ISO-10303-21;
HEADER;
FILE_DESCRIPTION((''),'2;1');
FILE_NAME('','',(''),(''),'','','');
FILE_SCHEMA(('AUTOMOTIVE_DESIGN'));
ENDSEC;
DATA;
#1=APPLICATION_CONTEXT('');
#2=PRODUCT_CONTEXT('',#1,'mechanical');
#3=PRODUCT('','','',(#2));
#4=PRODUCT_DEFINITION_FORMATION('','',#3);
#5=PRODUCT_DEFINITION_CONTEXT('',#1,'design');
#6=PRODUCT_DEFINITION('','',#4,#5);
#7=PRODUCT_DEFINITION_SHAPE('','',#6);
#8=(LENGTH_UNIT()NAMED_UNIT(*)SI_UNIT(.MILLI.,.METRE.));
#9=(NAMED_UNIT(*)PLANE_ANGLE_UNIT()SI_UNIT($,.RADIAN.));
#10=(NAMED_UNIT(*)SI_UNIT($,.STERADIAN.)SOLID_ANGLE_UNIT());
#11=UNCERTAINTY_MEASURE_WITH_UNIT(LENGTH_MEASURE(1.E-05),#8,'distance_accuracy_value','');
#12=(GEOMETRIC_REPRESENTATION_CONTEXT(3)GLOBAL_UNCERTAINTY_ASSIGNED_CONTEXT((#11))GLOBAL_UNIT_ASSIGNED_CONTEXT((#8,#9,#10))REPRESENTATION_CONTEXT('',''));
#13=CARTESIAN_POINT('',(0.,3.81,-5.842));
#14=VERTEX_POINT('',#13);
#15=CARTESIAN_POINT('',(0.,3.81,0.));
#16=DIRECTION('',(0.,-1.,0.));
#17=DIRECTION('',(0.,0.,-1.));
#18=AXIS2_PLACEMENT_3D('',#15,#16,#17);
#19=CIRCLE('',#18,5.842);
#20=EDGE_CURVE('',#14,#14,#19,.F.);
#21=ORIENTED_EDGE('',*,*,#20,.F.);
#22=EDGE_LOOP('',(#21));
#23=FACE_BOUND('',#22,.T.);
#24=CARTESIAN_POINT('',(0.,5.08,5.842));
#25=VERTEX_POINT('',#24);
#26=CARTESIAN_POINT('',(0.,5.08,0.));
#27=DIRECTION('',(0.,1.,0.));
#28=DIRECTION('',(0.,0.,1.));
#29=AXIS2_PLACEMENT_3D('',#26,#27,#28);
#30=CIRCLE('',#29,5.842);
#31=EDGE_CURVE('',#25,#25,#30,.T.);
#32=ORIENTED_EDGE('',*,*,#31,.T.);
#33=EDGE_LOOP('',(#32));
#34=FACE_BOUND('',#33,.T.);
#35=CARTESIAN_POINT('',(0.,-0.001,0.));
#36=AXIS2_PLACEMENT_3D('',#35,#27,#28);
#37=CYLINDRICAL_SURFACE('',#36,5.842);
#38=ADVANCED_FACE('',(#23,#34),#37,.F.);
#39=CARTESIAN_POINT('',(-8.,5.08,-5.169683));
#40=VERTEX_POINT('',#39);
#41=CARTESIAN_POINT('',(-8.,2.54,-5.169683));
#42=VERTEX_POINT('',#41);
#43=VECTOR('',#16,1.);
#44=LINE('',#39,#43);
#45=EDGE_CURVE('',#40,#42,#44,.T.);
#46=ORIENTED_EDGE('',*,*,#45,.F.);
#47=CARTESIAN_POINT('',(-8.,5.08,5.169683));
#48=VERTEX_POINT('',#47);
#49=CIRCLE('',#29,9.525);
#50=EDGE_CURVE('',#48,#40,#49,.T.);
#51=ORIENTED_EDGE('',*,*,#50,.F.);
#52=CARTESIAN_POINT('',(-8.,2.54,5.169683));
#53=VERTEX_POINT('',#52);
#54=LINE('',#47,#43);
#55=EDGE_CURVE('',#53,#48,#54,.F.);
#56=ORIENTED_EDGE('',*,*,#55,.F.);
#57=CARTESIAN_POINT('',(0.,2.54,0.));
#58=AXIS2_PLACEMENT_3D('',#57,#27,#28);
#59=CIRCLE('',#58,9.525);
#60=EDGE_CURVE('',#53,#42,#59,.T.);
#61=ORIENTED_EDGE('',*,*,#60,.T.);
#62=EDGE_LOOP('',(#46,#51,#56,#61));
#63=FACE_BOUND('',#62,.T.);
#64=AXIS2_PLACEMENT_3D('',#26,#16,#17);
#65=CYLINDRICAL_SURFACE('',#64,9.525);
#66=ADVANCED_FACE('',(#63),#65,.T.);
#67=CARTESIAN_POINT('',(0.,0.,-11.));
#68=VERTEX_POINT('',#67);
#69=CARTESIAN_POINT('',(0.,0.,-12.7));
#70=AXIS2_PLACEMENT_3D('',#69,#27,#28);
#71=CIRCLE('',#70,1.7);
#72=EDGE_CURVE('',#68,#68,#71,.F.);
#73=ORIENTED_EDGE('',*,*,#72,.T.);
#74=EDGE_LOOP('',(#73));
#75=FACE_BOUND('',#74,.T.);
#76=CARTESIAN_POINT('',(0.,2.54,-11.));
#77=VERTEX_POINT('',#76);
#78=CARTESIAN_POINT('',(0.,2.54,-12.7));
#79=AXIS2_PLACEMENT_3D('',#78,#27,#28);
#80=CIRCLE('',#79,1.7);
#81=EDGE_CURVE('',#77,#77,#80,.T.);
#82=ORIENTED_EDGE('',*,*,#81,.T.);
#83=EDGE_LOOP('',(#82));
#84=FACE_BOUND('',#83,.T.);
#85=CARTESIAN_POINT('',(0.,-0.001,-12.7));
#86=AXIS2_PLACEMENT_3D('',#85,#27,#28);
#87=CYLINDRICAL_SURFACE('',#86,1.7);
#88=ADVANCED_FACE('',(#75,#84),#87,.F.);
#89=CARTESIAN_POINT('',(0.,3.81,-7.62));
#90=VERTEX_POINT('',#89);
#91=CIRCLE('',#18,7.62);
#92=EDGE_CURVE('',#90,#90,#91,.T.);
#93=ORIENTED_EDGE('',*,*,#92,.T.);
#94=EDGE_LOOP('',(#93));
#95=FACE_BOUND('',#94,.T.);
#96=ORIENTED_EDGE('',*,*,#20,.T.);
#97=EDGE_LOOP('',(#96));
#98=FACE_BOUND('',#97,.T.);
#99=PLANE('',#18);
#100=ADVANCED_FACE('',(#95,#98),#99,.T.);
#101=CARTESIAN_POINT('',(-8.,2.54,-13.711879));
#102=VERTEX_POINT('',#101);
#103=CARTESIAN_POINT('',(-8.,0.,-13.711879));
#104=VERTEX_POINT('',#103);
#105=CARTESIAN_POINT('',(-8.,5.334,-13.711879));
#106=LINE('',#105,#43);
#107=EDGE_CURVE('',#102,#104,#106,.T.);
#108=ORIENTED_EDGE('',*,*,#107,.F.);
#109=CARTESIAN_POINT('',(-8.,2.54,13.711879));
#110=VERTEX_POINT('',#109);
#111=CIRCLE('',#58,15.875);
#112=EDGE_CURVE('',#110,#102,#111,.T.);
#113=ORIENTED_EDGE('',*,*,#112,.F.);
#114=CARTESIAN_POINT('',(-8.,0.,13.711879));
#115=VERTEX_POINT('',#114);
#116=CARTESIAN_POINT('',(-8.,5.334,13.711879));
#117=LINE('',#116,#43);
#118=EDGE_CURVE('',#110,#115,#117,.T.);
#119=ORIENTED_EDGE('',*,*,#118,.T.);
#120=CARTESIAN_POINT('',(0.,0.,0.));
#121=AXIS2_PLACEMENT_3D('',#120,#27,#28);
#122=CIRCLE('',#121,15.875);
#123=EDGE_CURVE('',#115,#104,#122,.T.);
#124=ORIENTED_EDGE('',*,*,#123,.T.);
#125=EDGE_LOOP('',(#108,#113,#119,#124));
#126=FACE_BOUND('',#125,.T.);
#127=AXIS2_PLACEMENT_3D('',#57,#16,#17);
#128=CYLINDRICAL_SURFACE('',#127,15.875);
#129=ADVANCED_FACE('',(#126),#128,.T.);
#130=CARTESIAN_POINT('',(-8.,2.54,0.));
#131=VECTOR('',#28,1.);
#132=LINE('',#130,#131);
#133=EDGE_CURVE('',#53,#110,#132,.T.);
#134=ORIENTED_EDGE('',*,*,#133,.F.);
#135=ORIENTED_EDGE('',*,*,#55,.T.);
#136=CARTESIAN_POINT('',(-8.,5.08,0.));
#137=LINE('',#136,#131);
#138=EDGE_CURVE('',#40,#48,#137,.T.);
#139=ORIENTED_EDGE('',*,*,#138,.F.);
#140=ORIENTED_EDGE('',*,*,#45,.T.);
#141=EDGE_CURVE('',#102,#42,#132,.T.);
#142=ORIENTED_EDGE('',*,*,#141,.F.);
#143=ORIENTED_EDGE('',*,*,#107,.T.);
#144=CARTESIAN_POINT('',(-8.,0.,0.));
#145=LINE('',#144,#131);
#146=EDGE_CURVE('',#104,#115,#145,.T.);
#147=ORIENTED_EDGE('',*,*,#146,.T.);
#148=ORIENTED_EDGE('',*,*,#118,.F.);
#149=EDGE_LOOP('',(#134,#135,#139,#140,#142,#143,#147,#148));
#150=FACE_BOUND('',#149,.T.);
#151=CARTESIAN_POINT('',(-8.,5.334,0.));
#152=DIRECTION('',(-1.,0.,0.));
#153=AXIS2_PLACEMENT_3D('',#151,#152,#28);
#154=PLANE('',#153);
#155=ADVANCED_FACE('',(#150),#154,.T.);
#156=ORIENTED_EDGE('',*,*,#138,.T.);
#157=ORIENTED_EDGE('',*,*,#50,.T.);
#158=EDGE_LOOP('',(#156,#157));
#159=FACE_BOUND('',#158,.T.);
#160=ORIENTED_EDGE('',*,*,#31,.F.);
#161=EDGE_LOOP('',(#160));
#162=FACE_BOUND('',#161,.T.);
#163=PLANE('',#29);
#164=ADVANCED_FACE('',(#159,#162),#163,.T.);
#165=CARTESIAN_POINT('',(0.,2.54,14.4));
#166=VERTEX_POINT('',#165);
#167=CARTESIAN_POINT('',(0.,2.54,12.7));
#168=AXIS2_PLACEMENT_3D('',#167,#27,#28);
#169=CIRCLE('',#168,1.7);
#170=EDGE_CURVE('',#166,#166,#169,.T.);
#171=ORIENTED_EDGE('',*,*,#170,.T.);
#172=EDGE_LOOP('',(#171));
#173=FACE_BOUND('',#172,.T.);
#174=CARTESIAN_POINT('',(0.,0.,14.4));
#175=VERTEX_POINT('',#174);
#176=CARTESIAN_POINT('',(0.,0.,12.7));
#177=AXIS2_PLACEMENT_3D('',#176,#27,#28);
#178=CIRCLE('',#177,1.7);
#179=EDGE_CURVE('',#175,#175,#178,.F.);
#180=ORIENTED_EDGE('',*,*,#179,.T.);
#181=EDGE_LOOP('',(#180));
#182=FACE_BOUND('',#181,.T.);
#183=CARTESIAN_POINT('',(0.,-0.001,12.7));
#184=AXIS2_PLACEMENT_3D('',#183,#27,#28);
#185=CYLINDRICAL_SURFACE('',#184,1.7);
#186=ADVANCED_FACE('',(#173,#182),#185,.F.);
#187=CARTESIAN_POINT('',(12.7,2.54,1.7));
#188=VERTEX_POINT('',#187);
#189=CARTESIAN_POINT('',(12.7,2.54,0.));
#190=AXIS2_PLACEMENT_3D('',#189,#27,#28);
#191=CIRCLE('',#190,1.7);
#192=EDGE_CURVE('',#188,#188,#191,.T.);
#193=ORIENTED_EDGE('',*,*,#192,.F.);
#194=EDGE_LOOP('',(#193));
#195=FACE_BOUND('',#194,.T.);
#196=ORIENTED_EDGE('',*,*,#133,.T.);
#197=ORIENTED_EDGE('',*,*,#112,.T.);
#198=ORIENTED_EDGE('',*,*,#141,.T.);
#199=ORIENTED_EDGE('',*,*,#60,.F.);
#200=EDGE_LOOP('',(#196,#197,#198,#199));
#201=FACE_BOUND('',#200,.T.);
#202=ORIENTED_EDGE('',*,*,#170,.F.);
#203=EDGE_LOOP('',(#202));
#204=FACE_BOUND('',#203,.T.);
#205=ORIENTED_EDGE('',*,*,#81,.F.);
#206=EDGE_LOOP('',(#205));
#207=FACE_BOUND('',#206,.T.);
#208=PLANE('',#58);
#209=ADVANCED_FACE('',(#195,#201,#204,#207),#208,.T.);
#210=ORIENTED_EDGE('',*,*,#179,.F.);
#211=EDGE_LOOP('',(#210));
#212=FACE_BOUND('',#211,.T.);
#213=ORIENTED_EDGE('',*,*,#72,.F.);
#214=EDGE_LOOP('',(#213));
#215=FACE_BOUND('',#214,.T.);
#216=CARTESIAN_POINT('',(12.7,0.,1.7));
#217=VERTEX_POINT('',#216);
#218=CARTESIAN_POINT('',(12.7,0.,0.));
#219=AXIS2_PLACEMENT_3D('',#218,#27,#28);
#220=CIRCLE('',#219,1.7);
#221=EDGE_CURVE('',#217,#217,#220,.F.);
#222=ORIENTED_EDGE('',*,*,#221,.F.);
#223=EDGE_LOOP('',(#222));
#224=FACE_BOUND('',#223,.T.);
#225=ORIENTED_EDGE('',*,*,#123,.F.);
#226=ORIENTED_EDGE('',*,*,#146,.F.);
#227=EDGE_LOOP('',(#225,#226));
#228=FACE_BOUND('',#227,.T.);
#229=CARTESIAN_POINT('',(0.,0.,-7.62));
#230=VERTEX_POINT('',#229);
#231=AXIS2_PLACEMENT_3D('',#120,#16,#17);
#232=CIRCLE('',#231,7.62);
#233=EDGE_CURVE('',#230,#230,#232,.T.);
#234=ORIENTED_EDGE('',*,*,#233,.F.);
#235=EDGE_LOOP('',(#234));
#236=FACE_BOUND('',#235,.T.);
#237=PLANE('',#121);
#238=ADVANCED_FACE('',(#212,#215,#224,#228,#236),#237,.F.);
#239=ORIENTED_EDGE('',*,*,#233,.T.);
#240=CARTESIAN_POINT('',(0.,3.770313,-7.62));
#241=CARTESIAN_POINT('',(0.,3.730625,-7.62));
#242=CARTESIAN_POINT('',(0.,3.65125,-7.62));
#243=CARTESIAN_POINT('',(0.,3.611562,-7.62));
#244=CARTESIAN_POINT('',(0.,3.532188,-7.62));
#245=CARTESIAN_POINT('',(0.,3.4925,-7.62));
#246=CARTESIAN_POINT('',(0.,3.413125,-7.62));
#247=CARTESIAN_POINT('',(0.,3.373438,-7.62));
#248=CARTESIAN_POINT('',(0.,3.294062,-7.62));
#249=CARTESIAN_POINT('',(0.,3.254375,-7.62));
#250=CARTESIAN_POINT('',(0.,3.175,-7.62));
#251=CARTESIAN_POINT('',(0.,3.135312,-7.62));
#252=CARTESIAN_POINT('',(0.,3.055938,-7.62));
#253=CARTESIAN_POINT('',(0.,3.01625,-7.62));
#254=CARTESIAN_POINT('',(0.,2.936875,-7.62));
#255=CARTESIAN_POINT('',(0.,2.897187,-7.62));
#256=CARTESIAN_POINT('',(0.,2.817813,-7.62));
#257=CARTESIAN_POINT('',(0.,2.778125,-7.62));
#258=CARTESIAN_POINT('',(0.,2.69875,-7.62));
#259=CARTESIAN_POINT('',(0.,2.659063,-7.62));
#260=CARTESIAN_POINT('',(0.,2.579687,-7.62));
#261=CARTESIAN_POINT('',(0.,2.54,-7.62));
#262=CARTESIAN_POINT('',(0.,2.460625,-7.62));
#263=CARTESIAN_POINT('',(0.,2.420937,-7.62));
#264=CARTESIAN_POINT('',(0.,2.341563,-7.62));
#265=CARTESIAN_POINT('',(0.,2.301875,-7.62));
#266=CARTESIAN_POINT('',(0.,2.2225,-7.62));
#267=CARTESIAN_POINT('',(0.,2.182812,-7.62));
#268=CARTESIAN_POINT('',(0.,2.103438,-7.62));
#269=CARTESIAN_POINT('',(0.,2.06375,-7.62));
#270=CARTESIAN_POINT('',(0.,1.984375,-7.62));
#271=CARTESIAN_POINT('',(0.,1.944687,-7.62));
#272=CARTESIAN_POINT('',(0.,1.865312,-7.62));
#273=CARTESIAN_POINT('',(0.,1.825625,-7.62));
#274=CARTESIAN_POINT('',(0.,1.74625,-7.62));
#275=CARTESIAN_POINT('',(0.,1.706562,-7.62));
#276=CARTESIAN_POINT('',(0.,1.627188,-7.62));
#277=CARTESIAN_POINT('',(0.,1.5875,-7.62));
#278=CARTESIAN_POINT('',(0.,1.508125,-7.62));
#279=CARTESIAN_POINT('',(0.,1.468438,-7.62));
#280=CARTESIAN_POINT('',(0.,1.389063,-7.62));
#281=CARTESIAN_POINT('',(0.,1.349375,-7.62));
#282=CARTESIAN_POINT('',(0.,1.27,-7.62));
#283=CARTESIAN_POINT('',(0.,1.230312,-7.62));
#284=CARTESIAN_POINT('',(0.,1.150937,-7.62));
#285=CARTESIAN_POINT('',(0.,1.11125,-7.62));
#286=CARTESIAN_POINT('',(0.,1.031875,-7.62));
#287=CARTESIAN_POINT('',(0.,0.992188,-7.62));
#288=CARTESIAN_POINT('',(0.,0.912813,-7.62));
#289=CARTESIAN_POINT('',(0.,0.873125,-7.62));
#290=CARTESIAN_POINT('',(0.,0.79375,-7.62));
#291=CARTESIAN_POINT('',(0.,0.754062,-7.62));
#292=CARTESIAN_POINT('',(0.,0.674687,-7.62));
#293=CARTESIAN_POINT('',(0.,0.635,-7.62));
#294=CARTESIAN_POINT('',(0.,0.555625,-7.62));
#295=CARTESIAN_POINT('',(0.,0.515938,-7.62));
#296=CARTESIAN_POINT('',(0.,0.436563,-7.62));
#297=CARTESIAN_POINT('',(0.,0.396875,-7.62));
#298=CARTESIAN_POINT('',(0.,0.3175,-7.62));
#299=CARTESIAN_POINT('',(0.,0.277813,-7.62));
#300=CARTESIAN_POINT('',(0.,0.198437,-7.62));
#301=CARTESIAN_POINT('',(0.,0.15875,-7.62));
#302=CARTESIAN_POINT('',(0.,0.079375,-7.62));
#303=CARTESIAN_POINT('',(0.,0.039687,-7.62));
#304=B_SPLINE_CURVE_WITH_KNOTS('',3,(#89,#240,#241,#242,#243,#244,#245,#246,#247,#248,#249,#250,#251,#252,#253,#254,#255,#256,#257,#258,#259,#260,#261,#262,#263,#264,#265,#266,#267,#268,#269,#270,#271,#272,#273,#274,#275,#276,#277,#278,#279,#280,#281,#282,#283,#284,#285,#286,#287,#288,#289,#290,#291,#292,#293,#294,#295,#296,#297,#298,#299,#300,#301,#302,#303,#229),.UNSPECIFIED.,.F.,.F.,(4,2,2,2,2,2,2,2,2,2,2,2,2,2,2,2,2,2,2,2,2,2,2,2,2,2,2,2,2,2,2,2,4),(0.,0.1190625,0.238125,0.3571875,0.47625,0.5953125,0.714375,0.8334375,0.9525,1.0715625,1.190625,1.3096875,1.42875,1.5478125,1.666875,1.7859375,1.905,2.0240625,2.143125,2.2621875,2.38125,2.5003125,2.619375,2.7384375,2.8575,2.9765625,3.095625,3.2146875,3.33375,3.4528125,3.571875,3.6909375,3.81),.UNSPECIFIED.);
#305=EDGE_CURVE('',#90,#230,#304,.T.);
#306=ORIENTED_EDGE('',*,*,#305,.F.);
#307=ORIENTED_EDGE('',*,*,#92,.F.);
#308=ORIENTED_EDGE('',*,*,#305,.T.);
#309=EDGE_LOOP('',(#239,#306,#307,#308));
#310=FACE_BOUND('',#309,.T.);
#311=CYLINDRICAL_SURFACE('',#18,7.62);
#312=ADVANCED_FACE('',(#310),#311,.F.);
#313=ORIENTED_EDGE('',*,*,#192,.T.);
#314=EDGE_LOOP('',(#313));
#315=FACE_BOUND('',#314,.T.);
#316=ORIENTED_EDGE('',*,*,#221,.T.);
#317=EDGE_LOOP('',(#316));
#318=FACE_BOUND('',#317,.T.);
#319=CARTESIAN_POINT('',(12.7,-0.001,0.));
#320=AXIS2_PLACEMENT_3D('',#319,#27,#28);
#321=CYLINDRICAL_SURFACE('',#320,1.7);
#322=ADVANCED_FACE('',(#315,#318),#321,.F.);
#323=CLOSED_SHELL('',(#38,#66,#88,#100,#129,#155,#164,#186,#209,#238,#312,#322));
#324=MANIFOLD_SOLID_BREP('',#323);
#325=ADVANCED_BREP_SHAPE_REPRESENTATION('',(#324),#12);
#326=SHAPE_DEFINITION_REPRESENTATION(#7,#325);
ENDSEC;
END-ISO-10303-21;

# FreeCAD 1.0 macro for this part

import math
import FreeCAD as App
import Part
import Sketcher

V = App.Vector
Q = App.Units.Quantity

doc = App.newDocument("Part")
body = doc.addObject("PartDesign::Body", "Body")

sketch1 = body.newObject("Sketcher::SketchObject", "Sketch")
sketch1.AttachmentSupport = (doc.getObject("XZ_Plane"), [""])
sketch1.MapMode = "FlatFace"
sketch1.addGeometry(Part.Circle(V(0, 0, 0), V(0, 0, 1), 15.875), False)
sketch1.addConstraint(Sketcher.Constraint("Coincident", 0, 3, -1, 1))
sketch1.addConstraint(Sketcher.Constraint("Diameter", 0, Q("1.25 in")))
pad1 = body.newObject("PartDesign::Pad", "Pad")
pad1.Profile = sketch1
pad1.Length = Q("0.1 in")
pad1.Reversed = True

sketch2 = body.newObject("Sketcher::SketchObject", "Sketch001")
sketch2.AttachmentSupport = (doc.getObject("XZ_Plane"), [""])
sketch2.MapMode = "FlatFace"
sketch2.AttachmentOffset = App.Placement(V(0, 0, -0.1 * 25.4), App.Rotation())
sketch2.addGeometry(Part.Circle(V(0, 0, 0), V(0, 0, 1), 9.525), False)
sketch2.addConstraint(Sketcher.Constraint("Coincident", 0, 3, -1, 1))
sketch2.addConstraint(Sketcher.Constraint("Diameter", 0, Q("0.75 in")))
pad2 = body.newObject("PartDesign::Pad", "Pad001")
pad2.Profile = sketch2
pad2.Length = Q("0.1 in")
pad2.Reversed = True

sketch3 = body.newObject("Sketcher::SketchObject", "Sketch002")
sketch3.AttachmentSupport = (doc.getObject("XZ_Plane"), [""])
sketch3.MapMode = "FlatFace"
sketch3.addGeometry(Part.Circle(V(0, 0, 0), V(0, 0, 1), 7.62), False)
sketch3.addConstraint(Sketcher.Constraint("Coincident", 0, 3, -1, 1))
sketch3.addConstraint(Sketcher.Constraint("Diameter", 0, Q("0.6 in")))
pocket1 = body.newObject("PartDesign::Pocket", "Pocket")
pocket1.Profile = sketch3
pocket1.Length = Q("0.15 in")

sketch4 = body.newObject("Sketcher::SketchObject", "Sketch003")
sketch4.AttachmentSupport = (doc.getObject("XZ_Plane"), [""])
sketch4.MapMode = "FlatFace"
sketch4.AttachmentOffset = App.Placement(V(0, 0, -0.2 * 25.4), App.Rotation())
sketch4.addGeometry(Part.Circle(V(0, 0, 0), V(0, 0, 1), 5.842), False)
sketch4.addConstraint(Sketcher.Constraint("Coincident", 0, 3, -1, 1))
sketch4.addConstraint(Sketcher.Constraint("Diameter", 0, Q("0.46 in")))
pocket2 = body.newObject("PartDesign::Pocket", "Pocket001")
pocket2.Profile = sketch4
pocket2.Type = "UpToFirst"
pocket2.Reversed = True

sketch5 = body.newObject("Sketcher::SketchObject", "Sketch004")
sketch5.AttachmentSupport = (doc.getObject("XZ_Plane"), [""])
sketch5.MapMode = "FlatFace"
sketch5.AttachmentOffset = App.Placement(V(0, 0, -0.1 * 25.4), App.Rotation())
sketch5.addGeometry(Part.Circle(V(0, -12.7, 0), V(0, 0, 1), 1.7), False)
sketch5.addConstraint(Sketcher.Constraint("PointOnObject", 0, 3, -2))
sketch5.addConstraint(Sketcher.Constraint("DistanceY", 0, 3, -1, 1, Q("0.5 in")))
sketch5.addConstraint(Sketcher.Constraint("Diameter", 0, Q("3.4 mm")))
pocket3 = body.newObject("PartDesign::Pocket", "Pocket002")
pocket3.Profile = sketch5
pocket3.Type = "UpToFirst"
pocket3.Reversed = True

sketch6 = body.newObject("Sketcher::SketchObject", "Sketch005")
sketch6.AttachmentSupport = (doc.getObject("XZ_Plane"), [""])
sketch6.MapMode = "FlatFace"
sketch6.AttachmentOffset = App.Placement(V(0, 0, -0.1 * 25.4), App.Rotation())
sketch6.addGeometry(Part.Circle(V(12.7, 0, 0), V(0, 0, 1), 1.7), False)
sketch6.addConstraint(Sketcher.Constraint("PointOnObject", 0, 3, -1))
sketch6.addConstraint(Sketcher.Constraint("DistanceX", -1, 1, 0, 3, Q("0.5 in")))
sketch6.addConstraint(Sketcher.Constraint("Diameter", 0, Q("3.4 mm")))
pocket4 = body.newObject("PartDesign::Pocket", "Pocket003")
pocket4.Profile = sketch6
pocket4.Type = "UpToFirst"
pocket4.Reversed = True

sketch7 = body.newObject("Sketcher::SketchObject", "Sketch006")
sketch7.AttachmentSupport = (doc.getObject("XZ_Plane"), [""])
sketch7.MapMode = "FlatFace"
sketch7.AttachmentOffset = App.Placement(V(0, 0, -0.1 * 25.4), App.Rotation())
sketch7.addGeometry(Part.Circle(V(0, 12.7, 0), V(0, 0, 1), 1.7), False)
sketch7.addConstraint(Sketcher.Constraint("PointOnObject", 0, 3, -2))
sketch7.addConstraint(Sketcher.Constraint("DistanceY", -1, 1, 0, 3, Q("0.5 in")))
sketch7.addConstraint(Sketcher.Constraint("Diameter", 0, Q("3.4 mm")))
pocket5 = body.newObject("PartDesign::Pocket", "Pocket004")
pocket5.Profile = sketch7
pocket5.Type = "UpToFirst"
pocket5.Reversed = True

sketch8 = body.newObject("Sketcher::SketchObject", "Sketch007")
sketch8.AttachmentSupport = (doc.getObject("XZ_Plane"), [""])
sketch8.MapMode = "FlatFace"
sketch8.AttachmentOffset = App.Placement(V(0, 0, -0.1 * 25.4), App.Rotation())
sketch8.addGeometry(Part.Circle(V(-12.7, 0, 0), V(0, 0, 1), 1.7), False)
sketch8.addConstraint(Sketcher.Constraint("PointOnObject", 0, 3, -1))
sketch8.addConstraint(Sketcher.Constraint("DistanceX", 0, 3, -1, 1, Q("0.5 in")))
sketch8.addConstraint(Sketcher.Constraint("Diameter", 0, Q("3.4 mm")))
pocket6 = body.newObject("PartDesign::Pocket", "Pocket005")
pocket6.Profile = sketch8
pocket6.Type = "UpToFirst"
pocket6.Reversed = True

sketch9 = body.newObject("Sketcher::SketchObject", "Sketch008")
sketch9.AttachmentSupport = (doc.getObject("XZ_Plane"), [""])
sketch9.MapMode = "FlatFace"
sketch9.AttachmentOffset = App.Placement(V(0, 0, -0.1 * 25.4), App.Rotation())
sketch9.addGeometry(Part.LineSegment(V(-8, 13.711879, 0), V(-8, -13.711879, 0)), False)
sketch9.addGeometry(Part.ArcOfCircle(Part.Circle(V(0, 0, 0), V(0, 0, 1), 15.875), math.radians(120.260814), math.radians(239.739186)), False)
sketch9.addConstraint(Sketcher.Constraint("Coincident", 0, 1, 1, 1))
sketch9.addConstraint(Sketcher.Constraint("Coincident", 1, 2, 0, 2))
sketch9.addConstraint(Sketcher.Constraint("Vertical", 0))
sketch9.addConstraint(Sketcher.Constraint("Coincident", 1, 3, -1, 1))
sketch9.addConstraint(Sketcher.Constraint("Radius", 1, Q("0.625 in")))
sketch9.addConstraint(Sketcher.Constraint("DistanceX", 0, 1, -1, 1, Q("8 mm")))
pocket7 = body.newObject("PartDesign::Pocket", "Pocket006")
pocket7.Profile = sketch9
pocket7.Length = Q("0.1 in")
pocket7.Reversed = True

sketch10 = body.newObject("Sketcher::SketchObject", "Sketch009")
sketch10.AttachmentSupport = (doc.getObject("XZ_Plane"), [""])
sketch10.MapMode = "FlatFace"
sketch10.AttachmentOffset = App.Placement(V(0, 0, -0.1 * 25.4), App.Rotation())
sketch10.addGeometry(Part.LineSegment(V(-8, 13.711879, 0), V(-8, -13.711879, 0)), False)
sketch10.addGeometry(Part.ArcOfCircle(Part.Circle(V(0, 0, 0), V(0, 0, 1), 15.875), math.radians(120.260814), math.radians(239.739186)), False)
sketch10.addConstraint(Sketcher.Constraint("Coincident", 0, 1, 1, 1))
sketch10.addConstraint(Sketcher.Constraint("Coincident", 1, 2, 0, 2))
sketch10.addConstraint(Sketcher.Constraint("Vertical", 0))
sketch10.addConstraint(Sketcher.Constraint("Coincident", 1, 3, -1, 1))
sketch10.addConstraint(Sketcher.Constraint("Radius", 1, Q("0.625 in")))
sketch10.addConstraint(Sketcher.Constraint("DistanceX", 0, 1, -1, 1, Q("8 mm")))
pocket8 = body.newObject("PartDesign::Pocket", "Pocket007")
pocket8.Profile = sketch10
pocket8.Length = Q("0.11 in")

doc.recompute()
